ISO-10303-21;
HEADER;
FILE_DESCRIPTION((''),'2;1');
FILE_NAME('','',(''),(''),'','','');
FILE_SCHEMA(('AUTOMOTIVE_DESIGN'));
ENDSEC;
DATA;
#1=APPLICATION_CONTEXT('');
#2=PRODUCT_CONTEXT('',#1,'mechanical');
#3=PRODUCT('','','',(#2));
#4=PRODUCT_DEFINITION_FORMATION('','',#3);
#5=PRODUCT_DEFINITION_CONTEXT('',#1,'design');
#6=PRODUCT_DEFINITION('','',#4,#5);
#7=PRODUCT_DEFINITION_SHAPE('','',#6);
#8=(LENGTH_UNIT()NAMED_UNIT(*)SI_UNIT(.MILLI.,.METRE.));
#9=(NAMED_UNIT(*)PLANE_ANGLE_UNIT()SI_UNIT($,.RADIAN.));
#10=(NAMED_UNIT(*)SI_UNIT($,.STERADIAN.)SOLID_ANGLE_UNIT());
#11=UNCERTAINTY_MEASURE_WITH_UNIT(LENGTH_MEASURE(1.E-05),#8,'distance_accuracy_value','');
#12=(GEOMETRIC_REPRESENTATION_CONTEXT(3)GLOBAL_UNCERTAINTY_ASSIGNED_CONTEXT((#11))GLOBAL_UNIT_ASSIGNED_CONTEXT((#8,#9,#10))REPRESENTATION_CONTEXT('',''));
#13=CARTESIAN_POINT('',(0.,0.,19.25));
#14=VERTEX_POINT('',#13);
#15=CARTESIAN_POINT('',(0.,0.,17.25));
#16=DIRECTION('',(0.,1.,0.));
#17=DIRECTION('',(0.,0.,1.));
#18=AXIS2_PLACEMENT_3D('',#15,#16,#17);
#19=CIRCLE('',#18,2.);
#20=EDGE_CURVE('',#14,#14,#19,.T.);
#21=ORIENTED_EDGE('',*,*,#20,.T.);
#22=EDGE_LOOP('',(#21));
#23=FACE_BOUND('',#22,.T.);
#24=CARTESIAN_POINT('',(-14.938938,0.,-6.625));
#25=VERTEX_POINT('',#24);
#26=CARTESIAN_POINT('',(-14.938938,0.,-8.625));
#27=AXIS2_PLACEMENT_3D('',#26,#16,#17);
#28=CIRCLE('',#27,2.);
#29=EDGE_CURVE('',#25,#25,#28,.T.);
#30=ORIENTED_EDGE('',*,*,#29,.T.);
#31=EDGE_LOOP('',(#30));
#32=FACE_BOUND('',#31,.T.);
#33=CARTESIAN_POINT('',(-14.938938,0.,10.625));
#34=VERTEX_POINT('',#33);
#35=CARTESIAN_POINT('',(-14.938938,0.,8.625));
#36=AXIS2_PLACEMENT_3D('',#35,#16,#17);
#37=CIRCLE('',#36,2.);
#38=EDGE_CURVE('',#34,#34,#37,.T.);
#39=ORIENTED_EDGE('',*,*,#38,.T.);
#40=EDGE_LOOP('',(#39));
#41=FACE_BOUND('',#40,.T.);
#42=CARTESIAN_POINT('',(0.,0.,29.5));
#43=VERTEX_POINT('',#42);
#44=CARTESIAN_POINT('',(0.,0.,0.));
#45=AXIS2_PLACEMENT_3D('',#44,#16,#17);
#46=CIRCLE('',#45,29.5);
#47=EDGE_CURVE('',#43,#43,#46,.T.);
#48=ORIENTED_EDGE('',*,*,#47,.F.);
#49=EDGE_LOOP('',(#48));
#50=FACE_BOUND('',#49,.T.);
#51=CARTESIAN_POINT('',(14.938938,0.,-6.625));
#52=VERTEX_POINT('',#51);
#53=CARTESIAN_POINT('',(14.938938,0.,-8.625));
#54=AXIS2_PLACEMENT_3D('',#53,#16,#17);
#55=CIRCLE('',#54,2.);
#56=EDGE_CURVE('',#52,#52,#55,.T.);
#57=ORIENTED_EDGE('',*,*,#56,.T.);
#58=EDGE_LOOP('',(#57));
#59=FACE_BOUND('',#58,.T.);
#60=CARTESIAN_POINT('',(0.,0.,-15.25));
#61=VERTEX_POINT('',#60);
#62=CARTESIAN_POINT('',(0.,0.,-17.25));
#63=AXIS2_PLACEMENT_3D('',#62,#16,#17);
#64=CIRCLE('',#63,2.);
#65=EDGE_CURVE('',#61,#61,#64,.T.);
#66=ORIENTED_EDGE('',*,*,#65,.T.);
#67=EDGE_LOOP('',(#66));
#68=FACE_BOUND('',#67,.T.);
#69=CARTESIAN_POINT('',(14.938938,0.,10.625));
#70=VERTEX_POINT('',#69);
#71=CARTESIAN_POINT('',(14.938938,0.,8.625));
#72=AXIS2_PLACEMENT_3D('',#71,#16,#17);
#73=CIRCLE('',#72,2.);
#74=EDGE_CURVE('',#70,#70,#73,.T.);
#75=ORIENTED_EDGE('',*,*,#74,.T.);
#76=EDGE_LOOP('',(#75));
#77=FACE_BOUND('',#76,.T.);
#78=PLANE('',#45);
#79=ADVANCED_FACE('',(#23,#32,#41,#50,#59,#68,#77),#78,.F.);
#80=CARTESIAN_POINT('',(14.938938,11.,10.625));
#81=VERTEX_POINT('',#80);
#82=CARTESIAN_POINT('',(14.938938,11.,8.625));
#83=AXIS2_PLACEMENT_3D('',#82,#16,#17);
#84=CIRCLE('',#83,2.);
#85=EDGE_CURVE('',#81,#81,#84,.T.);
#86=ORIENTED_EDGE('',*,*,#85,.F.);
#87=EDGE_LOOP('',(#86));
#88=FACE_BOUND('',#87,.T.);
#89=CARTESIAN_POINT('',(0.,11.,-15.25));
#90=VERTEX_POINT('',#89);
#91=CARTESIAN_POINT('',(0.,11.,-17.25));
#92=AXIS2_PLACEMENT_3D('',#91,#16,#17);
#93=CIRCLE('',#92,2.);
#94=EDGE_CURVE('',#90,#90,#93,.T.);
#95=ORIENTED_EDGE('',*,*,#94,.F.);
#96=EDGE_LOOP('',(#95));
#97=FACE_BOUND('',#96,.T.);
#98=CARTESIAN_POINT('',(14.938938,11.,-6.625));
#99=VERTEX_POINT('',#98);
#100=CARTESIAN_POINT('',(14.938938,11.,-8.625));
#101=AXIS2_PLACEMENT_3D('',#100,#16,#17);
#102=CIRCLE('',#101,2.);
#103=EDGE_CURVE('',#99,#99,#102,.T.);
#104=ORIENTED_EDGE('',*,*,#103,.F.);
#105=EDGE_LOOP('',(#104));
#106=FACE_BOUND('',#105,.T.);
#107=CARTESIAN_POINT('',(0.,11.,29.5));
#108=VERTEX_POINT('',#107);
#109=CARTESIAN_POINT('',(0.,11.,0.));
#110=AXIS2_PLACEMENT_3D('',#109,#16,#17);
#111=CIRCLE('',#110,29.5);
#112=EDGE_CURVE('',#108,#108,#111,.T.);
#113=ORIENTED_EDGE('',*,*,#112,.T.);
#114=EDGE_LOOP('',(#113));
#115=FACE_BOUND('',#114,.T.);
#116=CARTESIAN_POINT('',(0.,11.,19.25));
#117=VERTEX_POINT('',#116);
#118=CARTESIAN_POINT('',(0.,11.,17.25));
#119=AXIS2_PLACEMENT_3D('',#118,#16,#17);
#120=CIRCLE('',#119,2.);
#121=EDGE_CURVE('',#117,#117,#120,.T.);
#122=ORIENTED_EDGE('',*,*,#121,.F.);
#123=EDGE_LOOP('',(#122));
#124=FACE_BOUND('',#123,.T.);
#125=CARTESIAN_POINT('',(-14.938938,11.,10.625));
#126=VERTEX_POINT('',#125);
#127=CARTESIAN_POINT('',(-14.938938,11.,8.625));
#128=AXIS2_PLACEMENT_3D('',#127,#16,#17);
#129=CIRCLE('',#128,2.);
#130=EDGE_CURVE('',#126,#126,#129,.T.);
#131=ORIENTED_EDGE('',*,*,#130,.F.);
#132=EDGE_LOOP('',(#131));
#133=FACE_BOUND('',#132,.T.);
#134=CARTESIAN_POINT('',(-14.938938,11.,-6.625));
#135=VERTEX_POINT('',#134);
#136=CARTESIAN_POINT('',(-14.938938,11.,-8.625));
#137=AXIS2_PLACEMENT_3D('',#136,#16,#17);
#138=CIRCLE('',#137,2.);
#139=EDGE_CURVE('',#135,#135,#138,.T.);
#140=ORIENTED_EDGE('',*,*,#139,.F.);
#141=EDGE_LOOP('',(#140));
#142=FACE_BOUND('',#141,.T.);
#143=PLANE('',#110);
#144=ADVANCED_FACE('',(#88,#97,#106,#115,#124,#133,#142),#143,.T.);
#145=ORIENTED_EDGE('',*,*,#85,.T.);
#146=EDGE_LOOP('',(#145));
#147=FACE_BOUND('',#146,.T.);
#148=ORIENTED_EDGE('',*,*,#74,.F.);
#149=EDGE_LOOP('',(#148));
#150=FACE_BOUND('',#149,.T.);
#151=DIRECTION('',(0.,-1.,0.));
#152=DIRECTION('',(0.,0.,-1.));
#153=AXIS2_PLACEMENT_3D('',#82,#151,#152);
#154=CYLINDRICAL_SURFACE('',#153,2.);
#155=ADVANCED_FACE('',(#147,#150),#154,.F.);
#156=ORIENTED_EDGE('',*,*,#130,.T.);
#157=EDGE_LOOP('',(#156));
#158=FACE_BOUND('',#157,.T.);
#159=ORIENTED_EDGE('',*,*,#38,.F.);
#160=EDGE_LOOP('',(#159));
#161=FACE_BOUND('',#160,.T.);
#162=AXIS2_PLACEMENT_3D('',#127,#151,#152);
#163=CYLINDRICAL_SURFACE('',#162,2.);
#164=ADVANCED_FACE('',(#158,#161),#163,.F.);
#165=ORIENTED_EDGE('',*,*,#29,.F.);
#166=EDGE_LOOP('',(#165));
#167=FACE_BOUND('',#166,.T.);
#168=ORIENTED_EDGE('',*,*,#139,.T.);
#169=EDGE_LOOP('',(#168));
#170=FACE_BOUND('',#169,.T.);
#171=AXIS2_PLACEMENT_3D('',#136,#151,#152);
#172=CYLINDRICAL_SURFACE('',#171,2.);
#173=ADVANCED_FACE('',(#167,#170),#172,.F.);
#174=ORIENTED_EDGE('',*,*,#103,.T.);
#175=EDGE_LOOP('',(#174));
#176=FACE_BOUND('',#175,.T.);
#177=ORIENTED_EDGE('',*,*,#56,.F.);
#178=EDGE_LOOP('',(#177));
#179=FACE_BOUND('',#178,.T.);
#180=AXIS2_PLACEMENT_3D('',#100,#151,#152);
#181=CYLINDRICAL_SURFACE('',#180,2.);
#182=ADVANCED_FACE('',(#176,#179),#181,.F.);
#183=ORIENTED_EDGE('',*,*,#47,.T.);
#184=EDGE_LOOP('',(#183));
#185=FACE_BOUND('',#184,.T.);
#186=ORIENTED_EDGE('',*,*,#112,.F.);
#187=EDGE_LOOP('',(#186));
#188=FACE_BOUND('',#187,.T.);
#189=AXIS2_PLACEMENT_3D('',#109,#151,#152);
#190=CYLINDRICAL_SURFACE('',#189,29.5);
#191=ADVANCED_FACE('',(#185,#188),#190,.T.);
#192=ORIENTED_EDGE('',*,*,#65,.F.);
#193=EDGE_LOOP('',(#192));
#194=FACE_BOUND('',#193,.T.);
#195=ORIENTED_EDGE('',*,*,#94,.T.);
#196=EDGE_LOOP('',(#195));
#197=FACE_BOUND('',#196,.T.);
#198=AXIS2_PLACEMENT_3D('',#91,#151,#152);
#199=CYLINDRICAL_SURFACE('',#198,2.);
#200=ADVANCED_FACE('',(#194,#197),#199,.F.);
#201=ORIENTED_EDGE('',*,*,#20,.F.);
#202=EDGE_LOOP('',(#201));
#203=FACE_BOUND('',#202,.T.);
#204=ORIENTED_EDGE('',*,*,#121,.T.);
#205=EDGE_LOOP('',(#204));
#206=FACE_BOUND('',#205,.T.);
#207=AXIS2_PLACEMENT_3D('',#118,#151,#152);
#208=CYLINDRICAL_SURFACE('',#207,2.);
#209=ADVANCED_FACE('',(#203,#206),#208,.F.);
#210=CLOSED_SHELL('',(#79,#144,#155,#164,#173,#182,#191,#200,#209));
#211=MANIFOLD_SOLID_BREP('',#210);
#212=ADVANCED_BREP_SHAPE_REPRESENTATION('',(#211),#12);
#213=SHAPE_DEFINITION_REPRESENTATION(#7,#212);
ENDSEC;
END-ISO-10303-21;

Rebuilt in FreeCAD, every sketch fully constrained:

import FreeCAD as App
import Part
import Sketcher
from FreeCAD import Vector

doc = App.newDocument("Part")
params = doc.addObject("Spreadsheet::Sheet", "Params")
for row, (alias, value) in enumerate([
    ("sketch1_diameter", "59 mm"),
    ("sketch1_diameter2", "4 mm"),
    ("pad1_length", "11 mm"),
], start=1):
    params.set(f"A{row}", alias)
    params.set(f"B{row}", "=" + value)
    params.setAlias(f"B{row}", alias)

body = doc.addObject("PartDesign::Body", "Body")

# Sketch on XZ plane
sketch1 = doc.addObject("Sketcher::SketchObject", "Sketch")
body.addObject(sketch1)
sketch1.AttachmentSupport = (doc.XZ_Plane, [""])
sketch1.MapMode = "FlatFace"
sketch1.addGeometry([
    Part.Circle(Vector(0, 0, 0), Vector(0, 0, 1), 29.5),  # 0
    Part.Circle(Vector(-14.938938, -8.625, 0), Vector(0, 0, 1), 2),  # 1
    Part.Circle(Vector(0, -17.25, 0), Vector(0, 0, 1), 2),  # 2
    Part.Circle(Vector(-14.938938, 8.625, 0), Vector(0, 0, 1), 2),  # 3
    Part.Circle(Vector(14.938938, -8.625, 0), Vector(0, 0, 1), 2),  # 4
    Part.Circle(Vector(0, 17.25, 0), Vector(0, 0, 1), 2),  # 5
    Part.Circle(Vector(14.938938, 8.625, 0), Vector(0, 0, 1), 2),  # 6
], False)
sketch1.addConstraint([
    Sketcher.Constraint("Coincident", 0, 3, -1, 1),
    Sketcher.Constraint("Equal", 1, 2),
    Sketcher.Constraint("Equal", 2, 3),
    Sketcher.Constraint("Equal", 3, 4),
    Sketcher.Constraint("Equal", 4, 5),
    Sketcher.Constraint("Equal", 5, 6),
    Sketcher.Constraint("Symmetric", 3, 3, 4, 3, -1, 1),
    Sketcher.Constraint("Symmetric", 2, 3, 5, 3, -1, 1),
    Sketcher.Constraint("Symmetric", 1, 3, 6, 3, -1, 1),
    Sketcher.Constraint("Symmetric", 1, 3, 4, 3, -2),
    Sketcher.Constraint("PointOnObject", 2, 3, -2),
    Sketcher.Constraint("Diameter", 0, 59.0),
    Sketcher.Constraint("Diameter", 1, 4.0),
    Sketcher.Constraint("DistanceY", 2, 3, 5, 3, 34.5),
    Sketcher.Constraint("DistanceY", 1, 3, 3, 3, 17.25),
    Sketcher.Constraint("DistanceX", 1, 3, -1, 1, 14.938938),
])
sketch1.setExpression("Constraints[11]", "Params.sketch1_diameter")
sketch1.setExpression("Constraints[12]", "Params.sketch1_diameter2")
pad1 = doc.addObject("PartDesign::Pad", "Pad")
body.addObject(pad1)
pad1.Profile = sketch1
pad1.setExpression("Length", "Params.pad1_length")
pad1.Reversed = True

doc.recompute()
